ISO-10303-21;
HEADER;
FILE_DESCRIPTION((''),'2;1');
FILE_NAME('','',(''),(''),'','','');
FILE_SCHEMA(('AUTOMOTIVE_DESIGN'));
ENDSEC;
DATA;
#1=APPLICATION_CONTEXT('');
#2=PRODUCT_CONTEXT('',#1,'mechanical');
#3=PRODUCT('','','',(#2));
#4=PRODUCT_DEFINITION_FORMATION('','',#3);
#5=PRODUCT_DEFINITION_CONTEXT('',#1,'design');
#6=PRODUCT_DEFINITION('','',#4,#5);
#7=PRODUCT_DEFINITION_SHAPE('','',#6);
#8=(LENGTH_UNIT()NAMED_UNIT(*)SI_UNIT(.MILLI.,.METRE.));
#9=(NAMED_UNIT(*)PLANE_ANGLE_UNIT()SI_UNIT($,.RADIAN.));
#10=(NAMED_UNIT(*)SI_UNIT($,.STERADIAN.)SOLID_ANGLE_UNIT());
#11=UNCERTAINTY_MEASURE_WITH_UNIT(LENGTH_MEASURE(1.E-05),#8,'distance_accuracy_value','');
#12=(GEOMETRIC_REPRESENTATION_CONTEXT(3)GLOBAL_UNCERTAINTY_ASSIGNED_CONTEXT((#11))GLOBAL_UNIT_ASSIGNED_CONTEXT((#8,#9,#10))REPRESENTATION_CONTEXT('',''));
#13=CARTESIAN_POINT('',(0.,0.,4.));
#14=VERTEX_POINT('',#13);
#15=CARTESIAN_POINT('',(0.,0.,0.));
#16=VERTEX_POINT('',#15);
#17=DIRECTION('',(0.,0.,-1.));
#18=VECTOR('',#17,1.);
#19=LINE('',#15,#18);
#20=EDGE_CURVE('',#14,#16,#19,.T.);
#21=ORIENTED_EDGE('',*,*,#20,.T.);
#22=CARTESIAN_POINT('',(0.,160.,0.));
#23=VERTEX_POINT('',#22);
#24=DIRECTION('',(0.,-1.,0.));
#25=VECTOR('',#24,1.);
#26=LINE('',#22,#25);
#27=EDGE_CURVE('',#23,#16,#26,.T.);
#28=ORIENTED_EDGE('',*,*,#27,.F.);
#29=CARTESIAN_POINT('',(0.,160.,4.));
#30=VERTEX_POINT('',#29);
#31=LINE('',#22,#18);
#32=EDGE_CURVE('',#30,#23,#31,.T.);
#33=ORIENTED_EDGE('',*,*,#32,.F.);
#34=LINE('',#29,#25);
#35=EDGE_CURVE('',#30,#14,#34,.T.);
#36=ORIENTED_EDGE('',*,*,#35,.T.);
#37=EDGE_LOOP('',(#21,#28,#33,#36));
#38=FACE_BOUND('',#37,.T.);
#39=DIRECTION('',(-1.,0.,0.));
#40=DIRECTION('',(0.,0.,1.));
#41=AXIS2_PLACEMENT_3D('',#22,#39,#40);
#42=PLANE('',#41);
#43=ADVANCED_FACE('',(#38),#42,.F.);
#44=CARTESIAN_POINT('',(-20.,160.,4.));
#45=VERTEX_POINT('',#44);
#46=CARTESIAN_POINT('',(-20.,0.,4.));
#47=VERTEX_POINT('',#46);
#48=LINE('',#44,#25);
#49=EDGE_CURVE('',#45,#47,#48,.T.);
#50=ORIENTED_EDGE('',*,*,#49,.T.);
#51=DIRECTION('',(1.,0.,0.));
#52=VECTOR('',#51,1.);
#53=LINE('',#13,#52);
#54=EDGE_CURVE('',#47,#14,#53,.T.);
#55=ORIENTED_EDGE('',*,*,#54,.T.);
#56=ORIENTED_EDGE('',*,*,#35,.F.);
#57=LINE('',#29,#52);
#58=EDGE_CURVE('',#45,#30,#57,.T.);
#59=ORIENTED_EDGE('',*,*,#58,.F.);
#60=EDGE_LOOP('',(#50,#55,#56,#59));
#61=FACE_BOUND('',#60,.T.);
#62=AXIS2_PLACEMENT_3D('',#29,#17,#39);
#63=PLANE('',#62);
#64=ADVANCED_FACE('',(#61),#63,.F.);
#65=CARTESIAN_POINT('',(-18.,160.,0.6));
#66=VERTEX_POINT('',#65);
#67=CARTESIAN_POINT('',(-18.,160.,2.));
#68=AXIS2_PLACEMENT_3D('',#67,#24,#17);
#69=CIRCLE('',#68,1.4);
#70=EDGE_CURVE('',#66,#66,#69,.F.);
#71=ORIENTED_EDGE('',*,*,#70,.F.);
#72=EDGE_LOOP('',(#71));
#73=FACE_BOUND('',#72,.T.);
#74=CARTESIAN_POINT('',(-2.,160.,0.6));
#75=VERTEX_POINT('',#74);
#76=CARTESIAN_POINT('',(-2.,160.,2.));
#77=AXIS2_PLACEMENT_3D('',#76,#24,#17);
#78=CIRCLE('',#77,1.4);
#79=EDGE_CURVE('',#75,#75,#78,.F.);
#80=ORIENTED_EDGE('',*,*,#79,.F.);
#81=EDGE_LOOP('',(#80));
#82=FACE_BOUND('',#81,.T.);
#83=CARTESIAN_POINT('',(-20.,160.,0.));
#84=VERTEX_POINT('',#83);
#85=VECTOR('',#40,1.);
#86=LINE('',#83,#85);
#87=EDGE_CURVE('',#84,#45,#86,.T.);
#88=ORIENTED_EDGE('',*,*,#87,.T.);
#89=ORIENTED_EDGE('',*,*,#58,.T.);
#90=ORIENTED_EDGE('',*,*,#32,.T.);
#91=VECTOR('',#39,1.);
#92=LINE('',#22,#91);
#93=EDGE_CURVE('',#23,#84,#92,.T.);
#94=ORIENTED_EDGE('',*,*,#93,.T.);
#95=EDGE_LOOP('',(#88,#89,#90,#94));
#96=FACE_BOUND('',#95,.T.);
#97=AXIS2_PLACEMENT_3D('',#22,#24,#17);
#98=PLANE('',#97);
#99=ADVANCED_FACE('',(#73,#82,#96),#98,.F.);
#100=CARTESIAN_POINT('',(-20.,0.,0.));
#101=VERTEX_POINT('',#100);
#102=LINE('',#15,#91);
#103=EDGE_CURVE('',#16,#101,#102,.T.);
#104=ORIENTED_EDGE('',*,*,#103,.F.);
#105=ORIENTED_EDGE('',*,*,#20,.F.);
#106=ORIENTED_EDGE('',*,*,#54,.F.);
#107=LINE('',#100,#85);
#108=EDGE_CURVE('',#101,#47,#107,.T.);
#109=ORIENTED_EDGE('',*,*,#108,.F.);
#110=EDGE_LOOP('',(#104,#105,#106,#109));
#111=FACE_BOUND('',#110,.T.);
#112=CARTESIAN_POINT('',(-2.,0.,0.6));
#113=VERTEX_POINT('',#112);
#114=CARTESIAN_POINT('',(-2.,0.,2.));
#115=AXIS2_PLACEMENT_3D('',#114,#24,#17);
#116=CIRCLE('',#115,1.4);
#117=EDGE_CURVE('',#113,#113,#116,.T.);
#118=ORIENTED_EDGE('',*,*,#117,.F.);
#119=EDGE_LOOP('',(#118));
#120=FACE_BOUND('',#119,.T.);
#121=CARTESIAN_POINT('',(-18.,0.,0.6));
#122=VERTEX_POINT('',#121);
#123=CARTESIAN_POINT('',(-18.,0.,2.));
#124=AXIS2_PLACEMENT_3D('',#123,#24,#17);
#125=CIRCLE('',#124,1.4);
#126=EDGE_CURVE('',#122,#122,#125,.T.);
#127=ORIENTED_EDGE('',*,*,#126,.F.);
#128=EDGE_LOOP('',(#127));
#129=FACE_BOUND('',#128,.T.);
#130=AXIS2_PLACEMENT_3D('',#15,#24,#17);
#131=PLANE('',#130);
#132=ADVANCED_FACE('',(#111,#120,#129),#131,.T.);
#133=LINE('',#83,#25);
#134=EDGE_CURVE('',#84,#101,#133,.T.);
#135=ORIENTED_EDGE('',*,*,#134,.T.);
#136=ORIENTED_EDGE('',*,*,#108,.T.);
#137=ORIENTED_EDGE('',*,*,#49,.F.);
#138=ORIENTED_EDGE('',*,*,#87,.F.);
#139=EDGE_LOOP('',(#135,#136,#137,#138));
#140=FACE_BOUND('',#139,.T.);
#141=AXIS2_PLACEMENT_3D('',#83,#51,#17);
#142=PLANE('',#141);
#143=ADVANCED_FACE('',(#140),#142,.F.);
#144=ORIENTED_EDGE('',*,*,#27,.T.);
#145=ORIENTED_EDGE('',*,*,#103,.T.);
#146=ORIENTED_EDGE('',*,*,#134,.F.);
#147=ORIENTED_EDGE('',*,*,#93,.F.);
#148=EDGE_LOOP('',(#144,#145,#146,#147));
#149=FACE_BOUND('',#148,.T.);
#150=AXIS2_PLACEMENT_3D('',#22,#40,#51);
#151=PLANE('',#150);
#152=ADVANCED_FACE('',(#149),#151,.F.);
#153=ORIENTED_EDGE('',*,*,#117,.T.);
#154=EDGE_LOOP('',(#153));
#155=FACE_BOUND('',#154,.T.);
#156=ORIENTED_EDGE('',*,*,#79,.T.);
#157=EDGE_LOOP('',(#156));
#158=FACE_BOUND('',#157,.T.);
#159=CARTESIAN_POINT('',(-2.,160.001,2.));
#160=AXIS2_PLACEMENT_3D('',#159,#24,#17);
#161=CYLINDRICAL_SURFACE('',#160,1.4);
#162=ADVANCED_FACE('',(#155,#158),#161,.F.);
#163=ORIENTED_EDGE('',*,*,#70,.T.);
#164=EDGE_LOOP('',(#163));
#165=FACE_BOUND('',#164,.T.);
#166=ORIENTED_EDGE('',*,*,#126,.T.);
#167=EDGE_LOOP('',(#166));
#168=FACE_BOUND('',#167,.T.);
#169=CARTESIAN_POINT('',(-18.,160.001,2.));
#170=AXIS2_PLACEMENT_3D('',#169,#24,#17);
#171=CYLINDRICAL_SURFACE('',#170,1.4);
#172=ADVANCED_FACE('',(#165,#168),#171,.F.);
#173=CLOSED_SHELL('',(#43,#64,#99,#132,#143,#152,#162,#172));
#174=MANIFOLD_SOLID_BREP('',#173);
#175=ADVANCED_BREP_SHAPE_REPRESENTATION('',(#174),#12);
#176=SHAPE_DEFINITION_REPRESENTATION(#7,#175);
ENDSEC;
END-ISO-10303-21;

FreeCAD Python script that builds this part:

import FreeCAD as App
import Part
import Sketcher

doc = App.newDocument("Part")
body = doc.addObject("PartDesign::Body", "Body")

sketch1 = doc.addObject("Sketcher::SketchObject", "Sketch")
body.addObject(sketch1)
sketch1.AttachmentSupport = (doc.XZ_Plane, [""])
sketch1.MapMode = "FlatFace"
sketch1.addGeometry([
    Part.LineSegment(App.Vector(-20, 0, 0), App.Vector(-20, 4, 0)),
    Part.LineSegment(App.Vector(-20, 4, 0), App.Vector(0, 4, 0)),
    Part.LineSegment(App.Vector(0, 4, 0), App.Vector(0, 0, 0)),
    Part.LineSegment(App.Vector(0, 0, 0), App.Vector(-20, 0, 0)),
], False)
sketch1.addConstraint([
    Sketcher.Constraint("Coincident", 0, 2, 1, 1),
    Sketcher.Constraint("Coincident", 1, 2, 2, 1),
    Sketcher.Constraint("Coincident", 2, 2, 3, 1),
    Sketcher.Constraint("Coincident", 3, 2, 0, 1),
    Sketcher.Constraint("Vertical", 0),
    Sketcher.Constraint("Horizontal", 1),
    Sketcher.Constraint("Vertical", 2),
    Sketcher.Constraint("Horizontal", 3),
    Sketcher.Constraint("Coincident", 2, 2, -1, 1),
    Sketcher.Constraint("DistanceX", 1, 1, 1, 2, 20.0),
    Sketcher.Constraint("DistanceY", 0, 1, 0, 2, 4.0),
])
pad1 = doc.addObject("PartDesign::Pad", "Pad")
body.addObject(pad1)
pad1.Profile = sketch1
pad1.Length = 160
pad1.Reversed = True

sketch2 = doc.addObject("Sketcher::SketchObject", "Sketch001")
body.addObject(sketch2)
sketch2.AttachmentSupport = (doc.XZ_Plane, [""])
sketch2.MapMode = "FlatFace"
sketch2.addGeometry(Part.Circle(App.Vector(-18, 2, 0), App.Vector(0, 0, 1), 1.4), False)
sketch2.addConstraint([
    Sketcher.Constraint("Diameter", 0, 2.8),
    Sketcher.Constraint("DistanceX", 0, 3, -1, 1, 18.0),
    Sketcher.Constraint("DistanceY", -1, 1, 0, 3, 2.0),
])
pocket1 = doc.addObject("PartDesign::Pocket", "Pocket")
body.addObject(pocket1)
pocket1.Profile = sketch2
pocket1.Type = "UpToFirst"

sketch3 = doc.addObject("Sketcher::SketchObject", "Sketch002")
body.addObject(sketch3)
sketch3.AttachmentSupport = (doc.XZ_Plane, [""])
sketch3.MapMode = "FlatFace"
sketch3.addGeometry(Part.Circle(App.Vector(-2, 2, 0), App.Vector(0, 0, 1), 1.4), False)
sketch3.addConstraint([
    Sketcher.Constraint("Diameter", 0, 2.8),
    Sketcher.Constraint("DistanceX", 0, 3, -1, 1, 2.0),
    Sketcher.Constraint("DistanceY", -1, 1, 0, 3, 2.0),
])
pocket2 = doc.addObject("PartDesign::Pocket", "Pocket001")
body.addObject(pocket2)
pocket2.Profile = sketch3
pocket2.Type = "UpToFirst"

doc.recompute()
